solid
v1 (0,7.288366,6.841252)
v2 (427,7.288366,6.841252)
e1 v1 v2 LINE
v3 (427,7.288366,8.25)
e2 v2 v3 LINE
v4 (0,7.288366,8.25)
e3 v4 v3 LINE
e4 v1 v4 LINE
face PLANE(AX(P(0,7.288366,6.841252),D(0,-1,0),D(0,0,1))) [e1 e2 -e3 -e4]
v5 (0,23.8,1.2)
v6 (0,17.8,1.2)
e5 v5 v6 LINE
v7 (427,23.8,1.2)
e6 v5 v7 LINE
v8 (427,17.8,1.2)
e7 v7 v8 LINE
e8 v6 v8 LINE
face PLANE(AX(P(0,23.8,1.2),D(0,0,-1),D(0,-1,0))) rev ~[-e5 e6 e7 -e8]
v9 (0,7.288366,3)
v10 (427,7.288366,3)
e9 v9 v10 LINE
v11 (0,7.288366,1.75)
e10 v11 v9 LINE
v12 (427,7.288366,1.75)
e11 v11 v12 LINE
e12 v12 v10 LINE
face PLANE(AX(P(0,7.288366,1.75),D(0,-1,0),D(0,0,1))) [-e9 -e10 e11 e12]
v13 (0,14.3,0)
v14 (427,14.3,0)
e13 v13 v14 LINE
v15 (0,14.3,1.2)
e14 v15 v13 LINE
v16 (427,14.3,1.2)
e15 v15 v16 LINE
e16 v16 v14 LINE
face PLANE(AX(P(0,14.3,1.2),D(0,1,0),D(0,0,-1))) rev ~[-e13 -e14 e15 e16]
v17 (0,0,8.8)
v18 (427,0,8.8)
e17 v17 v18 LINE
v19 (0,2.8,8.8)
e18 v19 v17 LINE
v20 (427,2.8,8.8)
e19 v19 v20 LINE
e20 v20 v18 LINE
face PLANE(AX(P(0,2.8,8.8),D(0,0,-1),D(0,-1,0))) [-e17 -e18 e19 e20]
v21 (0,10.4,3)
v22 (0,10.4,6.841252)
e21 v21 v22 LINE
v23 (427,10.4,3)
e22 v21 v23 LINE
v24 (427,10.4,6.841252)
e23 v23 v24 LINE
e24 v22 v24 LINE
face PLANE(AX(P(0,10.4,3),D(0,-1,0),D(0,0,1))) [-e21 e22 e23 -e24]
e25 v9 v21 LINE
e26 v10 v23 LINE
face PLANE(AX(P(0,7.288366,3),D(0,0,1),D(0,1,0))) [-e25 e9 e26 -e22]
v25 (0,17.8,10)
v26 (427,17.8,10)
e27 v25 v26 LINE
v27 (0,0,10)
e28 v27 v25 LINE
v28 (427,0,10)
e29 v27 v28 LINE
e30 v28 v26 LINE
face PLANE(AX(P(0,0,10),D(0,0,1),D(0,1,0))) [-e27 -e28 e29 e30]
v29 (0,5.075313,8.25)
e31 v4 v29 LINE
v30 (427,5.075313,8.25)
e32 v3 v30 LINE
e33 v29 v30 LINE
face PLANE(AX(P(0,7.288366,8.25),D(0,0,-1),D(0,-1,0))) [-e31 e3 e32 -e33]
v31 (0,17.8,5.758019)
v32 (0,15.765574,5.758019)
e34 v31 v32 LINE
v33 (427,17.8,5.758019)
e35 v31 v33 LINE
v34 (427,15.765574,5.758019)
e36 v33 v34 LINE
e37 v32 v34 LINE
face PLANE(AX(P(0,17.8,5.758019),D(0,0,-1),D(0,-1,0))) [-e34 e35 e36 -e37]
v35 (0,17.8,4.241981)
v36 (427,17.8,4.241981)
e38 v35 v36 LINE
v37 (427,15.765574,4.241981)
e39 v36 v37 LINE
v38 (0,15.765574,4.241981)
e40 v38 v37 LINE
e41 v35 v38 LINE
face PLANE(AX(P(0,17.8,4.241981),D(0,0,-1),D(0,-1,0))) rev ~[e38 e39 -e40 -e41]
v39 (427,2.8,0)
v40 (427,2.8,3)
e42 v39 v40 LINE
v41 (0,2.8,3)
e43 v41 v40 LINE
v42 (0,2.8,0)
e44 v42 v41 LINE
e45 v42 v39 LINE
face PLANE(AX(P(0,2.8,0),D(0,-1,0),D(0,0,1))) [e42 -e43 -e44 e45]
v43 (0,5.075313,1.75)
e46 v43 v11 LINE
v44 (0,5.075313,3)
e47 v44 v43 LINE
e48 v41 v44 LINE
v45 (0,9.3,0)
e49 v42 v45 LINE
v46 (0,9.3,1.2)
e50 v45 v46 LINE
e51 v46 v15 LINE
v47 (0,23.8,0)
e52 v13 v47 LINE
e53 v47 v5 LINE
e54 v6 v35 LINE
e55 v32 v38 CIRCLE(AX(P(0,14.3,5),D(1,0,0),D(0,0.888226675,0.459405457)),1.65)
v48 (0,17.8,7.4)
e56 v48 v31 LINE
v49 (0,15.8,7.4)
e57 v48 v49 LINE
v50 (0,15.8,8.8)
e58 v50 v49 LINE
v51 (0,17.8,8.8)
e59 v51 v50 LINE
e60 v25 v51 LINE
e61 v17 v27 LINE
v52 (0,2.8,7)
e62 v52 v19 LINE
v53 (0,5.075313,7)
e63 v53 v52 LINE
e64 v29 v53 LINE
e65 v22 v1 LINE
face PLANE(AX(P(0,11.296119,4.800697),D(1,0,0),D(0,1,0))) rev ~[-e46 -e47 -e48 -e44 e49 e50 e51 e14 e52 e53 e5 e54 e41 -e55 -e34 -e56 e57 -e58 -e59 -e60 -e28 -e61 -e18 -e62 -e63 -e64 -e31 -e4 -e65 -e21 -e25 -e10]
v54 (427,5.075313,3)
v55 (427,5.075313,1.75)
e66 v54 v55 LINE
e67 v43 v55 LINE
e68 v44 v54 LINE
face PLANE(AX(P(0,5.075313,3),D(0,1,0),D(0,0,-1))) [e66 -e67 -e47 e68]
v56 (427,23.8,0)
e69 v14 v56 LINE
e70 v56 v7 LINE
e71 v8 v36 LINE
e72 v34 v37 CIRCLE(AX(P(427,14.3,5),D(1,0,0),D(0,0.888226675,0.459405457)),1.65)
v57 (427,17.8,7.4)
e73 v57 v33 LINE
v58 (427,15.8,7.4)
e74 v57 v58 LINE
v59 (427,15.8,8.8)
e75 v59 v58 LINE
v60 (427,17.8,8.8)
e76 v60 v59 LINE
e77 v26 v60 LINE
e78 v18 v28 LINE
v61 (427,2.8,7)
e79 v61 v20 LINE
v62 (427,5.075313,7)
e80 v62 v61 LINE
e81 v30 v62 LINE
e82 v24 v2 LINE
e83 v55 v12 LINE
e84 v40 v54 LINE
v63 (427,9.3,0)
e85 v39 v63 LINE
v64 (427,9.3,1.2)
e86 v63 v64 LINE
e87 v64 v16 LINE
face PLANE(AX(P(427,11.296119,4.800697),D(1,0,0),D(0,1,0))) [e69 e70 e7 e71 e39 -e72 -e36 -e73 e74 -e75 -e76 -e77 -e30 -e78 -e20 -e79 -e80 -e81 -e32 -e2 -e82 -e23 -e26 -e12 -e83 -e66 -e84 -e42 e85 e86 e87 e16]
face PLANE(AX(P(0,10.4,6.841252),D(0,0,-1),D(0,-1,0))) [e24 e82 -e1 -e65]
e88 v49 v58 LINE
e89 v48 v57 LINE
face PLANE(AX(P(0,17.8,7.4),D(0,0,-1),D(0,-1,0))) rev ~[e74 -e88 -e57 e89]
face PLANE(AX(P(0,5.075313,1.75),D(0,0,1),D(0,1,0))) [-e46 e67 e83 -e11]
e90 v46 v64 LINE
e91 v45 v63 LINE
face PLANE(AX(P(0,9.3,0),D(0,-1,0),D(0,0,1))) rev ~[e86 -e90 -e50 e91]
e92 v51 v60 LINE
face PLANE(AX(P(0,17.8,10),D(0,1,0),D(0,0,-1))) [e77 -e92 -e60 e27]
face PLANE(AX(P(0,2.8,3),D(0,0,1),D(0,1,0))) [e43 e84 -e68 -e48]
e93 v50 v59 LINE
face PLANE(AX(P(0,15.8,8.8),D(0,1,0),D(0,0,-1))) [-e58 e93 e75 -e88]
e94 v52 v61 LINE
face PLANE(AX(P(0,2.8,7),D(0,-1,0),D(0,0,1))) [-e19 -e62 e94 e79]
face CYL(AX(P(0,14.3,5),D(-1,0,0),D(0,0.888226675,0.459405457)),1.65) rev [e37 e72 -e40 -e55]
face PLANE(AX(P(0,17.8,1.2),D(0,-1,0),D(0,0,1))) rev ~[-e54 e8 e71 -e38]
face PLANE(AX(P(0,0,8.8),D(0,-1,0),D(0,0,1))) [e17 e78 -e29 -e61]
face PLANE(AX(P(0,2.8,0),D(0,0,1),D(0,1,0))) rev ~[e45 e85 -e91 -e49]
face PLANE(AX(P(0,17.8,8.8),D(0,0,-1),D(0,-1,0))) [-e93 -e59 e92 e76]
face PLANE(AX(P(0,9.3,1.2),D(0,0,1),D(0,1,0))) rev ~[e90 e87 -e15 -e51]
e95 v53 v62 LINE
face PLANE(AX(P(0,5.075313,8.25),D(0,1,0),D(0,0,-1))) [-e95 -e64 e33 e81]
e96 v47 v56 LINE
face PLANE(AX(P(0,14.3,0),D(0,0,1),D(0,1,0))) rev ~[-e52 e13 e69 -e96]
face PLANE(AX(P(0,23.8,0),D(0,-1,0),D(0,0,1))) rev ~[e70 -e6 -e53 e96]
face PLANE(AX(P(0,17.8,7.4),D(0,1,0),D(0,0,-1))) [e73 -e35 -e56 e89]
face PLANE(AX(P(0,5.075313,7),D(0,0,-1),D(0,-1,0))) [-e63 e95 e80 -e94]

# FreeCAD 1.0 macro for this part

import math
import FreeCAD as App
import Part
import Sketcher

V = App.Vector
Q = App.Units.Quantity

doc = App.newDocument("Part")
body = doc.addObject("PartDesign::Body", "Body")

sketch1 = body.newObject("Sketcher::SketchObject", "Sketch")
sketch1.AttachmentSupport = (doc.getObject("YZ_Plane"), [""])
sketch1.MapMode = "FlatFace"
sketch1.addGeometry([
    Part.LineSegment(V(2.8, 0, 0), V(9.3, 0, 0)),
    Part.LineSegment(V(9.3, 0, 0), V(9.3, 1.2, 0)),
    Part.LineSegment(V(9.3, 1.2, 0), V(14.3, 1.2, 0)),
    Part.LineSegment(V(14.3, 1.2, 0), V(14.3, 0, 0)),
    Part.LineSegment(V(14.3, 0, 0), V(23.8, 0, 0)),
    Part.LineSegment(V(23.8, 0, 0), V(23.8, 1.2, 0)),
    Part.LineSegment(V(23.8, 1.2, 0), V(17.8, 1.2, 0)),
    Part.LineSegment(V(17.8, 1.2, 0), V(17.8, 4.2, 0)),
    Part.LineSegment(V(17.8, 4.2, 0), V(15.8, 4.2, 0)),
    Part.ArcOfCircle(Part.Circle(V(14.3, 5, 0), V(0, 0, 1), 1.6), math.radians(27), math.radians(333)),
    Part.LineSegment(V(15.8, 5.8, 0), V(17.8, 5.8, 0)),
    Part.LineSegment(V(17.8, 5.8, 0), V(17.8, 7.4, 0)),
    Part.LineSegment(V(17.8, 7.4, 0), V(15.8, 7.4, 0)),
    Part.LineSegment(V(15.8, 7.4, 0), V(15.8, 8.8, 0)),
    Part.LineSegment(V(15.8, 8.8, 0), V(17.8, 8.8, 0)),
    Part.LineSegment(V(17.8, 8.8, 0), V(17.8, 10, 0)),
    Part.LineSegment(V(17.8, 10, 0), V(0, 10, 0)),
    Part.LineSegment(V(0, 10, 0), V(0, 8.8, 0)),
    Part.LineSegment(V(0, 8.8, 0), V(2.8, 8.8, 0)),
    Part.LineSegment(V(2.8, 8.8, 0), V(2.8, 7, 0)),
    Part.LineSegment(V(2.8, 7, 0), V(5.1, 7, 0)),
    Part.LineSegment(V(5.1, 7, 0), V(5.1, 8.2, 0)),
    Part.LineSegment(V(5.1, 8.2, 0), V(7.3, 8.2, 0)),
    Part.LineSegment(V(7.3, 8.2, 0), V(7.3, 6.8, 0)),
    Part.LineSegment(V(7.3, 6.8, 0), V(10.4, 6.8, 0)),
    Part.LineSegment(V(10.4, 6.8, 0), V(10.4, 3, 0)),
    Part.LineSegment(V(10.4, 3, 0), V(7.3, 3, 0)),
    Part.LineSegment(V(7.3, 3, 0), V(7.3, 1.8, 0)),
    Part.LineSegment(V(7.3, 1.8, 0), V(5.1, 1.8, 0)),
    Part.LineSegment(V(5.1, 1.8, 0), V(5.1, 3, 0)),
    Part.LineSegment(V(5.1, 3, 0), V(2.8, 3, 0)),
    Part.LineSegment(V(2.8, 3, 0), V(2.8, 0, 0)),
], False)
sketch1.addConstraint([
    Sketcher.Constraint("Coincident", 0, 2, 1, 1),
    Sketcher.Constraint("Coincident", 1, 2, 2, 1),
    Sketcher.Constraint("Coincident", 2, 2, 3, 1),
    Sketcher.Constraint("Coincident", 3, 2, 4, 1),
    Sketcher.Constraint("Coincident", 4, 2, 5, 1),
    Sketcher.Constraint("Coincident", 5, 2, 6, 1),
    Sketcher.Constraint("Coincident", 6, 2, 7, 1),
    Sketcher.Constraint("Coincident", 7, 2, 8, 1),
    Sketcher.Constraint("Coincident", 8, 2, 9, 2),
    Sketcher.Constraint("Coincident", 9, 1, 10, 1),
    Sketcher.Constraint("Coincident", 10, 2, 11, 1),
    Sketcher.Constraint("Coincident", 11, 2, 12, 1),
    Sketcher.Constraint("Coincident", 12, 2, 13, 1),
    Sketcher.Constraint("Coincident", 13, 2, 14, 1),
    Sketcher.Constraint("Coincident", 14, 2, 15, 1),
    Sketcher.Constraint("Coincident", 15, 2, 16, 1),
    Sketcher.Constraint("Coincident", 16, 2, 17, 1),
    Sketcher.Constraint("Coincident", 17, 2, 18, 1),
    Sketcher.Constraint("Coincident", 18, 2, 19, 1),
    Sketcher.Constraint("Coincident", 19, 2, 20, 1),
    Sketcher.Constraint("Coincident", 20, 2, 21, 1),
    Sketcher.Constraint("Coincident", 21, 2, 22, 1),
    Sketcher.Constraint("Coincident", 22, 2, 23, 1),
    Sketcher.Constraint("Coincident", 23, 2, 24, 1),
    Sketcher.Constraint("Coincident", 24, 2, 25, 1),
    Sketcher.Constraint("Coincident", 25, 2, 26, 1),
    Sketcher.Constraint("Coincident", 26, 2, 27, 1),
    Sketcher.Constraint("Coincident", 27, 2, 28, 1),
    Sketcher.Constraint("Coincident", 28, 2, 29, 1),
    Sketcher.Constraint("Coincident", 29, 2, 30, 1),
    Sketcher.Constraint("Coincident", 30, 2, 31, 1),
    Sketcher.Constraint("Coincident", 31, 2, 0, 1),
    Sketcher.Constraint("Horizontal", 0),
    Sketcher.Constraint("Vertical", 1),
    Sketcher.Constraint("Horizontal", 2),
    Sketcher.Constraint("Vertical", 3),
    Sketcher.Constraint("Horizontal", 4),
    Sketcher.Constraint("Vertical", 5),
    Sketcher.Constraint("Horizontal", 6),
    Sketcher.Constraint("Vertical", 7),
    Sketcher.Constraint("Horizontal", 8),
    Sketcher.Constraint("Horizontal", 10),
    Sketcher.Constraint("Vertical", 11),
    Sketcher.Constraint("Horizontal", 12),
    Sketcher.Constraint("Vertical", 13),
    Sketcher.Constraint("Horizontal", 14),
    Sketcher.Constraint("Vertical", 15),
    Sketcher.Constraint("Horizontal", 16),
    Sketcher.Constraint("Vertical", 17),
    Sketcher.Constraint("Horizontal", 18),
    Sketcher.Constraint("Vertical", 19),
    Sketcher.Constraint("Horizontal", 20),
    Sketcher.Constraint("Vertical", 21),
    Sketcher.Constraint("Horizontal", 22),
    Sketcher.Constraint("Vertical", 23),
    Sketcher.Constraint("Horizontal", 24),
    Sketcher.Constraint("Vertical", 25),
    Sketcher.Constraint("Horizontal", 26),
    Sketcher.Constraint("Vertical", 27),
    Sketcher.Constraint("Horizontal", 28),
    Sketcher.Constraint("Vertical", 29),
    Sketcher.Constraint("Horizontal", 30),
    Sketcher.Constraint("Vertical", 31),
    Sketcher.Constraint("PointOnObject", 0, 2, -1),
    Sketcher.Constraint("PointOnObject", 3, 2, -1),
    Sketcher.Constraint("PointOnObject", 16, 2, -2),
    Sketcher.Constraint("Horizontal", 2, 2, 5, 2),
    Sketcher.Constraint("Horizontal", 14, 2, 17, 2),
    Sketcher.Constraint("Horizontal", 26, 2, 29, 2),
    Sketcher.Constraint("Vertical", 9, 3, 2, 2),
    Sketcher.Constraint("Vertical", 8, 2, 9, 1),
    Sketcher.Constraint("Vertical", 7, 2, 10, 2),
    Sketcher.Constraint("Vertical", 11, 2, 14, 2),
    Sketcher.Constraint("Vertical", 23, 2, 26, 2),
    Sketcher.Constraint("Vertical", 21, 2, 28, 2),
    Sketcher.Constraint("Vertical", 19, 2, 30, 2),
    Sketcher.Constraint("Equal", 5, 15),
    Sketcher.Constraint("Equal", 21, 27),
    Sketcher.Constraint("DistanceX", 2, 1, 2, 2, Q("5 mm")),
    Sketcher.Constraint("DistanceX", 6, 2, 6, 1, Q("6 mm")),
    Sketcher.Constraint("DistanceX", 12, 2, 12, 1, Q("2 mm")),
    Sketcher.Constraint("DistanceY", 31, 2, 31, 1, Q("3 mm")),
    Sketcher.Constraint("Radius", 9, Q("1.65 mm")),
    Sketcher.Constraint("DistanceX", 0, 1, 0, 2, Q("6.5 mm")),
    Sketcher.Constraint("DistanceX", 4, 1, 4, 2, Q("9.5 mm")),
    Sketcher.Constraint("DistanceX", 16, 2, 16, 1, Q("17.8 mm")),
    Sketcher.Constraint("DistanceY", 1, 1, 1, 2, Q("1.2 mm")),
    Sketcher.Constraint("DistanceY", 13, 1, 13, 2, Q("1.4 mm")),
    Sketcher.Constraint("DistanceY", 19, 2, 19, 1, Q("1.8 mm")),
    Sketcher.Constraint("DistanceY", -1, 1, 9, 3, Q("5 mm")),
    Sketcher.Constraint("DistanceY", -1, 1, 15, 2, Q("10 mm")),
    Sketcher.Constraint("DistanceY", 21, 1, 21, 2, Q("1.25 mm")),
    Sketcher.Constraint("DistanceX", -1, 1, 24, 2, Q("10.4 mm")),
    Sketcher.Constraint("DistanceY", 7, 1, 7, 2, Q("3.041981 mm")),
    Sketcher.Constraint("DistanceY", 23, 2, 23, 1, Q("1.408748 mm")),
    Sketcher.Constraint("DistanceX", 20, 1, 20, 2, Q("2.275313 mm")),
    Sketcher.Constraint("DistanceX", 22, 1, 22, 2, Q("2.213053 mm")),
])
pad1 = body.newObject("PartDesign::Pad", "Pad")
pad1.Profile = sketch1
pad1.Length = 427

doc.recompute()
